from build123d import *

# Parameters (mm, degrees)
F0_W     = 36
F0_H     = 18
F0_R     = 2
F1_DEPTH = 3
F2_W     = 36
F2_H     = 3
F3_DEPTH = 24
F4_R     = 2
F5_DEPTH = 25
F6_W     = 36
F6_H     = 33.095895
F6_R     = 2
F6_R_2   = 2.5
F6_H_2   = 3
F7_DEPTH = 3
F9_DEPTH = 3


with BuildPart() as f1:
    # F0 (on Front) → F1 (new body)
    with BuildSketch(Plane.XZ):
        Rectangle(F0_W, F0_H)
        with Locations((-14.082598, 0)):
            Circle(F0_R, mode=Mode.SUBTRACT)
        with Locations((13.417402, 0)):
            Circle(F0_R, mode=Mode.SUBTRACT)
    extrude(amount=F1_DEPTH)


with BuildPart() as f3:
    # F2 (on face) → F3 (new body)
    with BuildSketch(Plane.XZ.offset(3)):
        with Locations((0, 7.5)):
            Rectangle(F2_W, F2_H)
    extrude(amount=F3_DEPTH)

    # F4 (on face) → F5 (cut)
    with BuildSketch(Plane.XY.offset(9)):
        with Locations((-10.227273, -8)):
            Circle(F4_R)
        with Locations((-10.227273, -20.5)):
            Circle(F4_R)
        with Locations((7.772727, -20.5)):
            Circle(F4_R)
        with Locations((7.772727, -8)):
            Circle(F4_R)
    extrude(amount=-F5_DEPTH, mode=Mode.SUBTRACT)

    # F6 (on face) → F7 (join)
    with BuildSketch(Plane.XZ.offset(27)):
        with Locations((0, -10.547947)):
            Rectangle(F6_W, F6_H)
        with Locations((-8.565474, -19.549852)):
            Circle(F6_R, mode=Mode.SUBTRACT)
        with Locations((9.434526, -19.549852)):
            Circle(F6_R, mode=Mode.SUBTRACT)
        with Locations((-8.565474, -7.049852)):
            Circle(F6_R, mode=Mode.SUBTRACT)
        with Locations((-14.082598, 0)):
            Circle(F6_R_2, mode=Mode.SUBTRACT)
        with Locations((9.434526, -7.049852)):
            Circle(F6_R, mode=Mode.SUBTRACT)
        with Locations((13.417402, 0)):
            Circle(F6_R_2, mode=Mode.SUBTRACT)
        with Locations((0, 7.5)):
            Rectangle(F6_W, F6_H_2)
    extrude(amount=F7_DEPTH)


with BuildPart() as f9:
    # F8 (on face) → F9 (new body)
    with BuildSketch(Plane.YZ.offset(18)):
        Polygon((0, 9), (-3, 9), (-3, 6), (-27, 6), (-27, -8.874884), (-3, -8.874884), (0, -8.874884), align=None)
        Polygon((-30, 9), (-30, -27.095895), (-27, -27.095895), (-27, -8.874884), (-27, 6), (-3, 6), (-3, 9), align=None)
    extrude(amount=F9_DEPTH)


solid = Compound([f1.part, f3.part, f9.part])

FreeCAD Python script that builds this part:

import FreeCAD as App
import Part
import Sketcher


def add_polygon(sketch, points):
    """Adds a closed chain of lines whose ends are joined by coincident constraints."""
    first, n = sketch.GeometryCount, len(points)
    for a, b in zip(points, points[1:] + points[:1]):
        sketch.addGeometry(Part.LineSegment(App.Vector(*a, 0), App.Vector(*b, 0)), False)
    for i in range(n):
        sketch.addConstraint(Sketcher.Constraint("Coincident", first + i, 2, first + (i + 1) % n, 1))

doc = App.newDocument("Part")
body = doc.addObject("PartDesign::Body", "Body")

# Sketch on XZ plane
sketch1 = body.newObject("Sketcher::SketchObject", "Sketch")
sketch1.AttachmentSupport = (doc.getObject("XZ_Plane"), [""])
sketch1.MapMode = "FlatFace"
add_polygon(sketch1, [(-18, 9), (-18, -9), (18, -9), (18, 9)])  # lines 0-3
sketch1.addGeometry(Part.Circle(App.Vector(-14.1, 0, 0), App.Vector(0, 0, 1), 2), False)  # 4
sketch1.addGeometry(Part.Circle(App.Vector(13.4, 0, 0), App.Vector(0, 0, 1), 2), False)  # 5
sketch1.addConstraint([
    Sketcher.Constraint("Vertical", 0),
    Sketcher.Constraint("Horizontal", 1),
    Sketcher.Constraint("Vertical", 2),
    Sketcher.Constraint("Horizontal", 3),
    Sketcher.Constraint("Equal", 4, 5),
    Sketcher.Constraint("Symmetric", 0, 2, 2, 2, -1, 1),
    Sketcher.Constraint("PointOnObject", 4, 3, -1),
    Sketcher.Constraint("PointOnObject", 5, 3, -1),
    Sketcher.Constraint("Diameter", 4, 4.0),
    Sketcher.Constraint("DistanceX", 1, 1, 1, 2, 36.0),
    Sketcher.Constraint("DistanceY", 0, 2, 0, 1, 18.0),
    Sketcher.Constraint("DistanceX", 4, 3, 5, 3, 27.5),
    Sketcher.Constraint("DistanceX", 4, 3, -1, 1, 14.082598),
])
pad1 = body.newObject("PartDesign::Pad", "Pad")
pad1.Profile = sketch1
pad1.Length = 3
body2 = doc.addObject("PartDesign::Body", "Body001")

# Sketch on XZ plane
sketch2 = body2.newObject("Sketcher::SketchObject", "Sketch001")
sketch2.AttachmentSupport = (doc.getObject("XZ_Plane001"), [""])
sketch2.MapMode = "FlatFace"
sketch2.AttachmentOffset = App.Placement(App.Vector(0, 0, 3), App.Rotation())
add_polygon(sketch2, [(-18, 9), (-18, 6), (18, 6), (18, 9)])  # lines 0-3
sketch2.addConstraint([
    Sketcher.Constraint("Vertical", 0),
    Sketcher.Constraint("Horizontal", 1),
    Sketcher.Constraint("Vertical", 2),
    Sketcher.Constraint("Horizontal", 3),
    Sketcher.Constraint("DistanceX", 1, 1, 1, 2, 36.0),
    Sketcher.Constraint("DistanceY", 0, 2, 0, 1, 3.0),
    Sketcher.Constraint("DistanceX", 0, 2, -1, 1, 18.0),
    Sketcher.Constraint("DistanceY", -1, 1, 0, 2, 6.0),
])
pad2 = body2.newObject("PartDesign::Pad", "Pad001")
pad2.Profile = sketch2
pad2.Length = 24

# Sketch on XY plane
sketch3 = body2.newObject("Sketcher::SketchObject", "Sketch002")
sketch3.AttachmentSupport = (doc.getObject("XY_Plane001"), [""])
sketch3.MapMode = "FlatFace"
sketch3.AttachmentOffset = App.Placement(App.Vector(0, 0, 9), App.Rotation())
sketch3.addGeometry([
    Part.Circle(App.Vector(-10.2, -8, 0), App.Vector(0, 0, 1), 2),
    Part.Circle(App.Vector(-10.2, -20.5, 0), App.Vector(0, 0, 1), 2),
    Part.Circle(App.Vector(7.8, -20.5, 0), App.Vector(0, 0, 1), 2),
    Part.Circle(App.Vector(7.8, -8, 0), App.Vector(0, 0, 1), 2),
], False)
sketch3.addConstraint([
    Sketcher.Constraint("Equal", 0, 1),
    Sketcher.Constraint("Equal", 1, 2),
    Sketcher.Constraint("Equal", 2, 3),
    Sketcher.Constraint("Horizontal", 1, 3, 2, 3),
    Sketcher.Constraint("Horizontal", 0, 3, 3, 3),
    Sketcher.Constraint("Vertical", 0, 3, 1, 3),
    Sketcher.Constraint("Vertical", 2, 3, 3, 3),
    Sketcher.Constraint("Diameter", 0, 4.0),
    Sketcher.Constraint("DistanceY", 0, 3, -1, 1, 8.0),
    Sketcher.Constraint("DistanceX", 1, 3, 2, 3, 18.0),
    Sketcher.Constraint("DistanceY", 1, 3, -1, 1, 20.5),
    Sketcher.Constraint("DistanceX", 0, 3, -1, 1, 10.227273),
])
pocket1 = body2.newObject("PartDesign::Pocket", "Pocket")
pocket1.Profile = sketch3
pocket1.Length = 25

# Sketch on XZ plane
sketch4 = body2.newObject("Sketcher::SketchObject", "Sketch003")
sketch4.AttachmentSupport = (doc.getObject("XZ_Plane001"), [""])
sketch4.MapMode = "FlatFace"
sketch4.AttachmentOffset = App.Placement(App.Vector(0, 0, 27), App.Rotation())
add_polygon(sketch4, [(-18, -27.1), (18, -27.1), (18, 9), (-18, 9)])  # lines 0-3
sketch4.addGeometry(Part.Circle(App.Vector(-8.6, -19.5, 0), App.Vector(0, 0, 1), 2), False)  # 4
sketch4.addGeometry(Part.Circle(App.Vector(9.4, -19.5, 0), App.Vector(0, 0, 1), 2), False)  # 5
sketch4.addGeometry(Part.Circle(App.Vector(-8.6, -7, 0), App.Vector(0, 0, 1), 2), False)  # 6
sketch4.addGeometry(Part.Circle(App.Vector(-14.1, 0, 0), App.Vector(0, 0, 1), 2.5), False)  # 7
sketch4.addGeometry(Part.Circle(App.Vector(9.4, -7, 0), App.Vector(0, 0, 1), 2), False)  # 8
sketch4.addGeometry(Part.Circle(App.Vector(13.4, 0, 0), App.Vector(0, 0, 1), 2.5), False)  # 9
sketch4.addConstraint([
    Sketcher.Constraint("Horizontal", 0),
    Sketcher.Constraint("Vertical", 1),
    Sketcher.Constraint("Horizontal", 2),
    Sketcher.Constraint("Vertical", 3),
    Sketcher.Constraint("Equal", 4, 5),
    Sketcher.Constraint("Equal", 5, 6),
    Sketcher.Constraint("Equal", 6, 8),
    Sketcher.Constraint("Equal", 7, 9),
    Sketcher.Constraint("PointOnObject", 7, 3, -1),
    Sketcher.Constraint("PointOnObject", 9, 3, -1),
    Sketcher.Constraint("Horizontal", 4, 3, 5, 3),
    Sketcher.Constraint("Horizontal", 6, 3, 8, 3),
    Sketcher.Constraint("Vertical", 4, 3, 6, 3),
    Sketcher.Constraint("Vertical", 5, 3, 8, 3),
    Sketcher.Constraint("Diameter", 4, 4.0),
    Sketcher.Constraint("Diameter", 7, 5.0),
    Sketcher.Constraint("DistanceX", 0, 1, 0, 2, 36.0),
    Sketcher.Constraint("DistanceX", -1, 1, 0, 2, 18.0),
    Sketcher.Constraint("DistanceY", -1, 1, 1, 2, 9.0),
    Sketcher.Constraint("DistanceX", 4, 3, 5, 3, 18.0),
    Sketcher.Constraint("DistanceY", 4, 3, 6, 3, 12.5),
    Sketcher.Constraint("DistanceX", 7, 3, 9, 3, 27.5),
    Sketcher.Constraint("DistanceX", 7, 3, -1, 1, 14.082598),
    Sketcher.Constraint("DistanceY", 1, 1, 1, 2, 36.095894),
    Sketcher.Constraint("DistanceY", 6, 3, -1, 1, 7.049852),
    Sketcher.Constraint("DistanceX", 4, 3, -1, 1, 8.565474),
])
pad3 = body2.newObject("PartDesign::Pad", "Pad002")
pad3.Profile = sketch4
pad3.Length = 3
body3 = doc.addObject("PartDesign::Body", "Body002")

# Sketch on YZ plane
sketch5 = body3.newObject("Sketcher::SketchObject", "Sketch004")
sketch5.AttachmentSupport = (doc.getObject("YZ_Plane002"), [""])
sketch5.MapMode = "FlatFace"
sketch5.AttachmentOffset = App.Placement(App.Vector(0, 0, 18), App.Rotation())
add_polygon(sketch5, [(0, 9), (-30, 9), (-30, -27.1), (-27, -27.1), (-27, -8.9), (0, -8.9)])  # lines 0-5
sketch5.addConstraint([
    Sketcher.Constraint("Horizontal", 0),
    Sketcher.Constraint("Vertical", 1),
    Sketcher.Constraint("Horizontal", 2),
    Sketcher.Constraint("Vertical", 3),
    Sketcher.Constraint("Horizontal", 4),
    Sketcher.Constraint("Vertical", 5),
    Sketcher.Constraint("PointOnObject", 4, 2, -2),
    Sketcher.Constraint("DistanceX", 0, 2, 0, 1, 30.0),
    Sketcher.Constraint("DistanceX", 2, 1, 2, 2, 3.0),
    Sketcher.Constraint("DistanceY", -1, 1, 0, 2, 9.0),
    Sketcher.Constraint("DistanceY", 3, 1, 3, 2, 18.221011),
    Sketcher.Constraint("DistanceY", 1, 2, 1, 1, 36.095895),
])
pad4 = body3.newObject("PartDesign::Pad", "Pad003")
pad4.Profile = sketch5
pad4.Length = 3

doc.recompute()
